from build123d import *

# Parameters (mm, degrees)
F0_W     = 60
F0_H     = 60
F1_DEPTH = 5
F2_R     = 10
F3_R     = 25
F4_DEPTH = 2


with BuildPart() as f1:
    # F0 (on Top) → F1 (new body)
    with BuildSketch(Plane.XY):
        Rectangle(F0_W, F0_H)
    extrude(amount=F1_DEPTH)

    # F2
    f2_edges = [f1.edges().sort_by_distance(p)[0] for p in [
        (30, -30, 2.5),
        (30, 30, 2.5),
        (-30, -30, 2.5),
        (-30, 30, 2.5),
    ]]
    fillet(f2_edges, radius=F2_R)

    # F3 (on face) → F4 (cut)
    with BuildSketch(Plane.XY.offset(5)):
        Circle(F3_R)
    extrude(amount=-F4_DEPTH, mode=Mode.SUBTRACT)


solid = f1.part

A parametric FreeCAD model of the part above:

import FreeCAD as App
import Part
import Sketcher

V = App.Vector


def edges_at(feature, points):
    """Names of the edges that pass closest to the given points."""
    edges = feature.Shape.Edges
    near = lambda p: min(range(len(edges)), key=lambda i: edges[i].distToShape(Part.Vertex(*p))[0])
    return sorted({f"Edge{near(p) + 1}" for p in points})

doc = App.newDocument("Part")
body = doc.addObject("PartDesign::Body", "Body")

# Sketch on XY plane
sketch1 = body.newObject("Sketcher::SketchObject", "Sketch")
sketch1.AttachmentSupport = (doc.getObject("XY_Plane"), [""])
sketch1.MapMode = "FlatFace"
sketch1.addGeometry([
    Part.LineSegment(V(-30, 30, 0), V(-30, -30, 0)),
    Part.LineSegment(V(-30, -30, 0), V(30, -30, 0)),
    Part.LineSegment(V(30, -30, 0), V(30, 30, 0)),
    Part.LineSegment(V(30, 30, 0), V(-30, 30, 0)),
], False)
sketch1.addConstraint([
    Sketcher.Constraint("Coincident", 0, 2, 1, 1),
    Sketcher.Constraint("Coincident", 1, 2, 2, 1),
    Sketcher.Constraint("Coincident", 2, 2, 3, 1),
    Sketcher.Constraint("Coincident", 3, 2, 0, 1),
    Sketcher.Constraint("Vertical", 0),
    Sketcher.Constraint("Horizontal", 1),
    Sketcher.Constraint("Vertical", 2),
    Sketcher.Constraint("Horizontal", 3),
    Sketcher.Constraint("Symmetric", 0, 2, 2, 2, -1, 1),
    Sketcher.Constraint("Equal", 3, 0),
    Sketcher.Constraint("DistanceX", 1, 1, 1, 2, 60.0),
])
pad1 = body.newObject("PartDesign::Pad", "Pad")
pad1.Profile = sketch1
pad1.Length = 5
doc.recompute()

fillet = body.newObject("PartDesign::Fillet", "Fillet")
fillet.Base = (pad1, edges_at(pad1, [
    (30, -30, 2.5),
    (30, 30, 2.5),
    (-30, -30, 2.5),
    (-30, 30, 2.5),
]))
fillet.Radius = 10

# Sketch on XY plane
sketch2 = body.newObject("Sketcher::SketchObject", "Sketch001")
sketch2.AttachmentSupport = (doc.getObject("XY_Plane"), [""])
sketch2.MapMode = "FlatFace"
sketch2.AttachmentOffset = App.Placement(V(0, 0, 5), App.Rotation())
sketch2.addGeometry(Part.Circle(V(0, 0, 0), V(0, 0, 1), 25), False)
sketch2.addConstraint([
    Sketcher.Constraint("Coincident", 0, 3, -1, 1),
    Sketcher.Constraint("Diameter", 0, 50.0),
])
pocket1 = body.newObject("PartDesign::Pocket", "Pocket")
pocket1.Profile = sketch2
pocket1.Length = 2

doc.recompute()
